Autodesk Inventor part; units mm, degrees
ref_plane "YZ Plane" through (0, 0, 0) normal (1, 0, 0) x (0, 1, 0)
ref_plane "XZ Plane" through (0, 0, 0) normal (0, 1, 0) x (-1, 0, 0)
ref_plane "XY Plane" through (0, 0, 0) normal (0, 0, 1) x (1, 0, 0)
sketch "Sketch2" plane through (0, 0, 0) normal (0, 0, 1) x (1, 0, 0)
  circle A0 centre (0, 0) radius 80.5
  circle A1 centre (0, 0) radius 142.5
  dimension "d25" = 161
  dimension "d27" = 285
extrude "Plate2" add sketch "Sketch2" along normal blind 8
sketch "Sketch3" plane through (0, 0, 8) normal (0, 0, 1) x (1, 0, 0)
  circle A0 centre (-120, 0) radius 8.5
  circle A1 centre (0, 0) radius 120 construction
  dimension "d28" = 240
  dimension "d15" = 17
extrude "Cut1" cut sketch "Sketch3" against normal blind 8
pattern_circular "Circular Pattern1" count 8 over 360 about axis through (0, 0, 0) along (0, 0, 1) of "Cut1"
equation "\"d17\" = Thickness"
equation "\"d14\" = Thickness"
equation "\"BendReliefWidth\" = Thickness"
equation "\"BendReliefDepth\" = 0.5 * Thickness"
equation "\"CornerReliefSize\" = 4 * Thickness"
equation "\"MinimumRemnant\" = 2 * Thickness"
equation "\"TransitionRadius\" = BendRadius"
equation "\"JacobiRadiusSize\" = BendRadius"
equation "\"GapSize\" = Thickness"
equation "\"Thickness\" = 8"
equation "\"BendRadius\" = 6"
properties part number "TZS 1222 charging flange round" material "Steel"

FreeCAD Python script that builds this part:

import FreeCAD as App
import Part
import Sketcher
from FreeCAD import Vector

doc = App.newDocument("Part")
body = doc.addObject("PartDesign::Body", "Body")

# Sketch on XY plane
sketch1 = doc.addObject("Sketcher::SketchObject", "Sketch")
body.addObject(sketch1)
sketch1.AttachmentSupport = (doc.XY_Plane, [""])
sketch1.MapMode = "FlatFace"
sketch1.addGeometry([
    Part.Circle(Vector(0, 0, 0), Vector(0, 0, 1), 142),
    Part.Circle(Vector(0, 0, 0), Vector(0, 0, 1), 80),
], False)
sketch1.addConstraint([
    Sketcher.Constraint("Coincident", 0, 3, -1, 1),
    Sketcher.Constraint("Coincident", 1, 3, -1, 1),
    Sketcher.Constraint("Diameter", 0, 285.0),
    Sketcher.Constraint("Diameter", 1, 161.0),
])
pad1 = doc.addObject("PartDesign::Pad", "Pad")
body.addObject(pad1)
pad1.Profile = sketch1
pad1.Length = 8

# Sketch on XY plane
sketch2 = doc.addObject("Sketcher::SketchObject", "Sketch001")
body.addObject(sketch2)
sketch2.AttachmentSupport = (doc.XY_Plane, [""])
sketch2.MapMode = "FlatFace"
sketch2.AttachmentOffset = App.Placement(Vector(0, 0, 8), App.Rotation())
sketch2.addGeometry(Part.Circle(Vector(-120, 0, 0), Vector(0, 0, 1), 8), False)
sketch2.addConstraint([
    Sketcher.Constraint("PointOnObject", 0, 3, -1),
    Sketcher.Constraint("Diameter", 0, 17.0),
    Sketcher.Constraint("DistanceX", 0, 3, -1, 1, 120.0),
])
pocket1 = doc.addObject("PartDesign::Pocket", "Pocket")
body.addObject(pocket1)
pocket1.Profile = sketch2
pocket1.Length = 8
doc.recompute()

polarpattern = doc.addObject("PartDesign::PolarPattern", "PolarPattern")
body.addObject(polarpattern)
polarpattern.Originals = [pocket1]
polarpattern.Axis = (doc.Z_Axis, [""])
polarpattern.Angle = 360
polarpattern.Occurrences = 8
body.Tip = polarpattern

doc.recompute()
